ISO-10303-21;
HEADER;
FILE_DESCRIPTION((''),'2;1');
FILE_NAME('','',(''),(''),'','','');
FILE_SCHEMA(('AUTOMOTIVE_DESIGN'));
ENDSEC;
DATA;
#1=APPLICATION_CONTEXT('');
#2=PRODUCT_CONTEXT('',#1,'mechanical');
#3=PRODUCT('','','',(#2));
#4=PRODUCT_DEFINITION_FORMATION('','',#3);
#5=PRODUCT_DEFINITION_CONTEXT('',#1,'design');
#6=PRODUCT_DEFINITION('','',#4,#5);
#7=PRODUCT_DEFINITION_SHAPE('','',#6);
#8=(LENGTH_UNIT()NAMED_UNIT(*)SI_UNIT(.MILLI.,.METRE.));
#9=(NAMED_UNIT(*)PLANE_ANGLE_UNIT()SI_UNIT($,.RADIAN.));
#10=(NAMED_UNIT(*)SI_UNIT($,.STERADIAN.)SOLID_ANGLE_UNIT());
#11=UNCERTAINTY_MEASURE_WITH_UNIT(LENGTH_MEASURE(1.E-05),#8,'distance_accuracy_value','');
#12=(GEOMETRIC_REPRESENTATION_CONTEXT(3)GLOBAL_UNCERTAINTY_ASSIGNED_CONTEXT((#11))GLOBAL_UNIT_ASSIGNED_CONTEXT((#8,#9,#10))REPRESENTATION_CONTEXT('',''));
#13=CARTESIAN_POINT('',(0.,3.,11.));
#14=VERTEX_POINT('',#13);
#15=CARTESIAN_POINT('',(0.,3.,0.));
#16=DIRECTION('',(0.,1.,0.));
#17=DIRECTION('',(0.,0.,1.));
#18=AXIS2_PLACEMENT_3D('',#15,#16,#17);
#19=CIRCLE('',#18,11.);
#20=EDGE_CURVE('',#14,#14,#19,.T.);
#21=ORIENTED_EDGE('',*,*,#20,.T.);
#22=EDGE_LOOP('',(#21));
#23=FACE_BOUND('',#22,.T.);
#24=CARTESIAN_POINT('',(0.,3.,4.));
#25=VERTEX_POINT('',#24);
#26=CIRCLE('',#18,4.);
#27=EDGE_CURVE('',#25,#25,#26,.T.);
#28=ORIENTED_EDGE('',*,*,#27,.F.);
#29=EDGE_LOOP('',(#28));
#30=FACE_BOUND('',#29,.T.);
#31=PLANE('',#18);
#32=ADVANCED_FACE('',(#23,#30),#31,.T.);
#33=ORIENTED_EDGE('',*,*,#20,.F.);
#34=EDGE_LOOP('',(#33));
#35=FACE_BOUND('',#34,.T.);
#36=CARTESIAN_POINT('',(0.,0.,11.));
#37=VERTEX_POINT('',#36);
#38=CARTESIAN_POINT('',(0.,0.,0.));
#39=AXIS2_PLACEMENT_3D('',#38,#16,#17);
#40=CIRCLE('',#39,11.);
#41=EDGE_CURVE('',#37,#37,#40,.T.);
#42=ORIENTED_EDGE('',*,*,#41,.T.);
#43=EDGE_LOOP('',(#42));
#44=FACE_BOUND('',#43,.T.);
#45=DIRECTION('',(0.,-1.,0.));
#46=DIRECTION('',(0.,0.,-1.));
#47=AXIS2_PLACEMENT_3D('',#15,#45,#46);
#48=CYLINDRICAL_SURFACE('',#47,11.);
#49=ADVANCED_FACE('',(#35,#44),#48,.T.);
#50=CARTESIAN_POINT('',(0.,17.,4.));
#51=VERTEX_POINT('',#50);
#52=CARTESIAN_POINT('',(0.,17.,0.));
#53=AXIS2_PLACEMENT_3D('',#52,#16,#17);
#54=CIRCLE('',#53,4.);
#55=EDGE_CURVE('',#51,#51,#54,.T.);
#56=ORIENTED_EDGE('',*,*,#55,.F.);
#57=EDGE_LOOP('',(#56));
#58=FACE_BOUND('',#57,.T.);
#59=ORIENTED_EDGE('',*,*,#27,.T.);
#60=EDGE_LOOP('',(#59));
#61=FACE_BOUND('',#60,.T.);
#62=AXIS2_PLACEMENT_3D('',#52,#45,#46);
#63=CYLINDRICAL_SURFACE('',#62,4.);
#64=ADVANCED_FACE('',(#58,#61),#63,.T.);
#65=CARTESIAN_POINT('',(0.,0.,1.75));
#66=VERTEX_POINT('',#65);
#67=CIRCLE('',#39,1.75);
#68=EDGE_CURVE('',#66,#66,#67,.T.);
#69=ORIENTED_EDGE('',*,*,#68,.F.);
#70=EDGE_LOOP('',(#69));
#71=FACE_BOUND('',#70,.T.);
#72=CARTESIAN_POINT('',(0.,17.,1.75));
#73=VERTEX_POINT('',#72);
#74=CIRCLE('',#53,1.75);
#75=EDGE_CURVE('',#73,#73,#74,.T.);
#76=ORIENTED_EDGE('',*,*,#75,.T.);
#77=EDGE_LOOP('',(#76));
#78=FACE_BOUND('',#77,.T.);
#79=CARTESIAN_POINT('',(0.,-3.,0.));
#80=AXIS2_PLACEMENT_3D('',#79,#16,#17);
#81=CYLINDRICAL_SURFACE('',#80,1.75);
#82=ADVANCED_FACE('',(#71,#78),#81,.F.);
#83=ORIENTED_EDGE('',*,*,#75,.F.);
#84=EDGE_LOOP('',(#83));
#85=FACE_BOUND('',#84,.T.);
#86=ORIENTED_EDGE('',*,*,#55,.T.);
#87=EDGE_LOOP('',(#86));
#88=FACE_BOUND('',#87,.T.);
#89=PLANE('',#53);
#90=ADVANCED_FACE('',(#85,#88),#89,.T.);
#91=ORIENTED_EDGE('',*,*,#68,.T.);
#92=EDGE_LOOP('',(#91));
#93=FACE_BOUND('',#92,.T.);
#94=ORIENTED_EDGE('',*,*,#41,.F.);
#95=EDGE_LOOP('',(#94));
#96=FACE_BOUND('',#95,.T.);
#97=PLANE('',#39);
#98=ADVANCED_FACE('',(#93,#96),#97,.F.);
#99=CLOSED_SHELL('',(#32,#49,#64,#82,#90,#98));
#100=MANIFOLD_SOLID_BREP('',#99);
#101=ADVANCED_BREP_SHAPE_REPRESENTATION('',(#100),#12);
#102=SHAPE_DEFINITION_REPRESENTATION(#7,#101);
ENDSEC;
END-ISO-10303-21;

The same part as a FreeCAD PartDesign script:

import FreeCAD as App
import Part
import Sketcher

V = App.Vector
Q = App.Units.Quantity

doc = App.newDocument("Part")
body = doc.addObject("PartDesign::Body", "Body")

sketch1 = body.newObject("Sketcher::SketchObject", "Sketch")
sketch1.AttachmentSupport = (doc.getObject("XZ_Plane"), [""])
sketch1.MapMode = "FlatFace"
sketch1.addGeometry(Part.Circle(V(0, 0, 0), V(0, 0, 1), 11), False)
sketch1.addConstraint(Sketcher.Constraint("Coincident", 0, 3, -1, 1))
sketch1.addConstraint(Sketcher.Constraint("Diameter", 0, Q("22 mm")))
pad1 = body.newObject("PartDesign::Pad", "Pad")
pad1.Profile = sketch1
pad1.Length = 3
pad1.Reversed = True

sketch2 = body.newObject("Sketcher::SketchObject", "Sketch001")
sketch2.AttachmentSupport = (doc.getObject("XZ_Plane"), [""])
sketch2.MapMode = "FlatFace"
sketch2.AttachmentOffset = App.Placement(V(0, 0, -3), App.Rotation())
sketch2.addGeometry(Part.Circle(V(0, 0, 0), V(0, 0, 1), 4), False)
sketch2.addConstraint(Sketcher.Constraint("Coincident", 0, 3, -1, 1))
sketch2.addConstraint(Sketcher.Constraint("Diameter", 0, Q("8 mm")))
pad2 = body.newObject("PartDesign::Pad", "Pad001")
pad2.Profile = sketch2
pad2.Length = 14
pad2.Reversed = True

sketch3 = body.newObject("Sketcher::SketchObject", "Sketch002")
sketch3.AttachmentSupport = (doc.getObject("XZ_Plane"), [""])
sketch3.MapMode = "FlatFace"
sketch3.AttachmentOffset = App.Placement(V(0, 0, -17), App.Rotation())
sketch3.addGeometry(Part.Circle(V(0, 0, 0), V(0, 0, 1), 1.8), False)
sketch3.addConstraint(Sketcher.Constraint("Coincident", 0, 3, -1, 1))
sketch3.addConstraint(Sketcher.Constraint("Diameter", 0, Q("3.5 mm")))
pocket1 = body.newObject("PartDesign::Pocket", "Pocket")
pocket1.Profile = sketch3
pocket1.Length = 20
pocket1.Reversed = True

doc.recompute()
